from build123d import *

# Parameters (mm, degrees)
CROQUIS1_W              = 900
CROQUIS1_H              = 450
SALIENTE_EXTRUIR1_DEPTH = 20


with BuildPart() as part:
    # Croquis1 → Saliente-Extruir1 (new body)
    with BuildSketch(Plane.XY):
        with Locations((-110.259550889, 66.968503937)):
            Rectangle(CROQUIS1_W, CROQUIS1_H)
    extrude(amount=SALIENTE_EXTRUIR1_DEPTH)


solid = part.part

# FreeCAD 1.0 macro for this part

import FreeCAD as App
import Part
import Sketcher
from FreeCAD import Vector
Q = App.Units.Quantity


def add_polygon(sketch, points):
    """Adds a closed chain of lines whose ends are joined by coincident constraints."""
    first, n = sketch.GeometryCount, len(points)
    for a, b in zip(points, points[1:] + points[:1]):
        sketch.addGeometry(Part.LineSegment(App.Vector(*a, 0), App.Vector(*b, 0)), False)
    for i in range(n):
        sketch.addConstraint(Sketcher.Constraint("Coincident", first + i, 2, first + (i + 1) % n, 1))

doc = App.newDocument("Part")
body = doc.addObject("PartDesign::Body", "Body")

sketch1 = body.newObject("Sketcher::SketchObject", "Sketch")
sketch1.AttachmentSupport = (doc.getObject("XY_Plane"), [""])
sketch1.MapMode = "FlatFace"
add_polygon(sketch1, [(-560.259551, 291.968504), (-560.259551, -158.031496), (339.740449, -158.031496), (339.740449, 291.968504)])
sketch1.addConstraint(Sketcher.Constraint("Vertical", 0))
sketch1.addConstraint(Sketcher.Constraint("Horizontal", 1))
sketch1.addConstraint(Sketcher.Constraint("Vertical", 2))
sketch1.addConstraint(Sketcher.Constraint("Horizontal", 3))
sketch1.addConstraint(Sketcher.Constraint("DistanceX", 1, 1, 1, 2, Q("900 mm")))
sketch1.addConstraint(Sketcher.Constraint("DistanceY", 0, 2, 0, 1, Q("450 mm")))
sketch1.addConstraint(Sketcher.Constraint("DistanceX", 0, 2, -1, 1, Q("560.259551 mm")))
sketch1.addConstraint(Sketcher.Constraint("DistanceY", 0, 2, -1, 1, Q("158.031496 mm")))
pad1 = body.newObject("PartDesign::Pad", "Pad")
pad1.Profile = sketch1
pad1.Length = 20

doc.recompute()
